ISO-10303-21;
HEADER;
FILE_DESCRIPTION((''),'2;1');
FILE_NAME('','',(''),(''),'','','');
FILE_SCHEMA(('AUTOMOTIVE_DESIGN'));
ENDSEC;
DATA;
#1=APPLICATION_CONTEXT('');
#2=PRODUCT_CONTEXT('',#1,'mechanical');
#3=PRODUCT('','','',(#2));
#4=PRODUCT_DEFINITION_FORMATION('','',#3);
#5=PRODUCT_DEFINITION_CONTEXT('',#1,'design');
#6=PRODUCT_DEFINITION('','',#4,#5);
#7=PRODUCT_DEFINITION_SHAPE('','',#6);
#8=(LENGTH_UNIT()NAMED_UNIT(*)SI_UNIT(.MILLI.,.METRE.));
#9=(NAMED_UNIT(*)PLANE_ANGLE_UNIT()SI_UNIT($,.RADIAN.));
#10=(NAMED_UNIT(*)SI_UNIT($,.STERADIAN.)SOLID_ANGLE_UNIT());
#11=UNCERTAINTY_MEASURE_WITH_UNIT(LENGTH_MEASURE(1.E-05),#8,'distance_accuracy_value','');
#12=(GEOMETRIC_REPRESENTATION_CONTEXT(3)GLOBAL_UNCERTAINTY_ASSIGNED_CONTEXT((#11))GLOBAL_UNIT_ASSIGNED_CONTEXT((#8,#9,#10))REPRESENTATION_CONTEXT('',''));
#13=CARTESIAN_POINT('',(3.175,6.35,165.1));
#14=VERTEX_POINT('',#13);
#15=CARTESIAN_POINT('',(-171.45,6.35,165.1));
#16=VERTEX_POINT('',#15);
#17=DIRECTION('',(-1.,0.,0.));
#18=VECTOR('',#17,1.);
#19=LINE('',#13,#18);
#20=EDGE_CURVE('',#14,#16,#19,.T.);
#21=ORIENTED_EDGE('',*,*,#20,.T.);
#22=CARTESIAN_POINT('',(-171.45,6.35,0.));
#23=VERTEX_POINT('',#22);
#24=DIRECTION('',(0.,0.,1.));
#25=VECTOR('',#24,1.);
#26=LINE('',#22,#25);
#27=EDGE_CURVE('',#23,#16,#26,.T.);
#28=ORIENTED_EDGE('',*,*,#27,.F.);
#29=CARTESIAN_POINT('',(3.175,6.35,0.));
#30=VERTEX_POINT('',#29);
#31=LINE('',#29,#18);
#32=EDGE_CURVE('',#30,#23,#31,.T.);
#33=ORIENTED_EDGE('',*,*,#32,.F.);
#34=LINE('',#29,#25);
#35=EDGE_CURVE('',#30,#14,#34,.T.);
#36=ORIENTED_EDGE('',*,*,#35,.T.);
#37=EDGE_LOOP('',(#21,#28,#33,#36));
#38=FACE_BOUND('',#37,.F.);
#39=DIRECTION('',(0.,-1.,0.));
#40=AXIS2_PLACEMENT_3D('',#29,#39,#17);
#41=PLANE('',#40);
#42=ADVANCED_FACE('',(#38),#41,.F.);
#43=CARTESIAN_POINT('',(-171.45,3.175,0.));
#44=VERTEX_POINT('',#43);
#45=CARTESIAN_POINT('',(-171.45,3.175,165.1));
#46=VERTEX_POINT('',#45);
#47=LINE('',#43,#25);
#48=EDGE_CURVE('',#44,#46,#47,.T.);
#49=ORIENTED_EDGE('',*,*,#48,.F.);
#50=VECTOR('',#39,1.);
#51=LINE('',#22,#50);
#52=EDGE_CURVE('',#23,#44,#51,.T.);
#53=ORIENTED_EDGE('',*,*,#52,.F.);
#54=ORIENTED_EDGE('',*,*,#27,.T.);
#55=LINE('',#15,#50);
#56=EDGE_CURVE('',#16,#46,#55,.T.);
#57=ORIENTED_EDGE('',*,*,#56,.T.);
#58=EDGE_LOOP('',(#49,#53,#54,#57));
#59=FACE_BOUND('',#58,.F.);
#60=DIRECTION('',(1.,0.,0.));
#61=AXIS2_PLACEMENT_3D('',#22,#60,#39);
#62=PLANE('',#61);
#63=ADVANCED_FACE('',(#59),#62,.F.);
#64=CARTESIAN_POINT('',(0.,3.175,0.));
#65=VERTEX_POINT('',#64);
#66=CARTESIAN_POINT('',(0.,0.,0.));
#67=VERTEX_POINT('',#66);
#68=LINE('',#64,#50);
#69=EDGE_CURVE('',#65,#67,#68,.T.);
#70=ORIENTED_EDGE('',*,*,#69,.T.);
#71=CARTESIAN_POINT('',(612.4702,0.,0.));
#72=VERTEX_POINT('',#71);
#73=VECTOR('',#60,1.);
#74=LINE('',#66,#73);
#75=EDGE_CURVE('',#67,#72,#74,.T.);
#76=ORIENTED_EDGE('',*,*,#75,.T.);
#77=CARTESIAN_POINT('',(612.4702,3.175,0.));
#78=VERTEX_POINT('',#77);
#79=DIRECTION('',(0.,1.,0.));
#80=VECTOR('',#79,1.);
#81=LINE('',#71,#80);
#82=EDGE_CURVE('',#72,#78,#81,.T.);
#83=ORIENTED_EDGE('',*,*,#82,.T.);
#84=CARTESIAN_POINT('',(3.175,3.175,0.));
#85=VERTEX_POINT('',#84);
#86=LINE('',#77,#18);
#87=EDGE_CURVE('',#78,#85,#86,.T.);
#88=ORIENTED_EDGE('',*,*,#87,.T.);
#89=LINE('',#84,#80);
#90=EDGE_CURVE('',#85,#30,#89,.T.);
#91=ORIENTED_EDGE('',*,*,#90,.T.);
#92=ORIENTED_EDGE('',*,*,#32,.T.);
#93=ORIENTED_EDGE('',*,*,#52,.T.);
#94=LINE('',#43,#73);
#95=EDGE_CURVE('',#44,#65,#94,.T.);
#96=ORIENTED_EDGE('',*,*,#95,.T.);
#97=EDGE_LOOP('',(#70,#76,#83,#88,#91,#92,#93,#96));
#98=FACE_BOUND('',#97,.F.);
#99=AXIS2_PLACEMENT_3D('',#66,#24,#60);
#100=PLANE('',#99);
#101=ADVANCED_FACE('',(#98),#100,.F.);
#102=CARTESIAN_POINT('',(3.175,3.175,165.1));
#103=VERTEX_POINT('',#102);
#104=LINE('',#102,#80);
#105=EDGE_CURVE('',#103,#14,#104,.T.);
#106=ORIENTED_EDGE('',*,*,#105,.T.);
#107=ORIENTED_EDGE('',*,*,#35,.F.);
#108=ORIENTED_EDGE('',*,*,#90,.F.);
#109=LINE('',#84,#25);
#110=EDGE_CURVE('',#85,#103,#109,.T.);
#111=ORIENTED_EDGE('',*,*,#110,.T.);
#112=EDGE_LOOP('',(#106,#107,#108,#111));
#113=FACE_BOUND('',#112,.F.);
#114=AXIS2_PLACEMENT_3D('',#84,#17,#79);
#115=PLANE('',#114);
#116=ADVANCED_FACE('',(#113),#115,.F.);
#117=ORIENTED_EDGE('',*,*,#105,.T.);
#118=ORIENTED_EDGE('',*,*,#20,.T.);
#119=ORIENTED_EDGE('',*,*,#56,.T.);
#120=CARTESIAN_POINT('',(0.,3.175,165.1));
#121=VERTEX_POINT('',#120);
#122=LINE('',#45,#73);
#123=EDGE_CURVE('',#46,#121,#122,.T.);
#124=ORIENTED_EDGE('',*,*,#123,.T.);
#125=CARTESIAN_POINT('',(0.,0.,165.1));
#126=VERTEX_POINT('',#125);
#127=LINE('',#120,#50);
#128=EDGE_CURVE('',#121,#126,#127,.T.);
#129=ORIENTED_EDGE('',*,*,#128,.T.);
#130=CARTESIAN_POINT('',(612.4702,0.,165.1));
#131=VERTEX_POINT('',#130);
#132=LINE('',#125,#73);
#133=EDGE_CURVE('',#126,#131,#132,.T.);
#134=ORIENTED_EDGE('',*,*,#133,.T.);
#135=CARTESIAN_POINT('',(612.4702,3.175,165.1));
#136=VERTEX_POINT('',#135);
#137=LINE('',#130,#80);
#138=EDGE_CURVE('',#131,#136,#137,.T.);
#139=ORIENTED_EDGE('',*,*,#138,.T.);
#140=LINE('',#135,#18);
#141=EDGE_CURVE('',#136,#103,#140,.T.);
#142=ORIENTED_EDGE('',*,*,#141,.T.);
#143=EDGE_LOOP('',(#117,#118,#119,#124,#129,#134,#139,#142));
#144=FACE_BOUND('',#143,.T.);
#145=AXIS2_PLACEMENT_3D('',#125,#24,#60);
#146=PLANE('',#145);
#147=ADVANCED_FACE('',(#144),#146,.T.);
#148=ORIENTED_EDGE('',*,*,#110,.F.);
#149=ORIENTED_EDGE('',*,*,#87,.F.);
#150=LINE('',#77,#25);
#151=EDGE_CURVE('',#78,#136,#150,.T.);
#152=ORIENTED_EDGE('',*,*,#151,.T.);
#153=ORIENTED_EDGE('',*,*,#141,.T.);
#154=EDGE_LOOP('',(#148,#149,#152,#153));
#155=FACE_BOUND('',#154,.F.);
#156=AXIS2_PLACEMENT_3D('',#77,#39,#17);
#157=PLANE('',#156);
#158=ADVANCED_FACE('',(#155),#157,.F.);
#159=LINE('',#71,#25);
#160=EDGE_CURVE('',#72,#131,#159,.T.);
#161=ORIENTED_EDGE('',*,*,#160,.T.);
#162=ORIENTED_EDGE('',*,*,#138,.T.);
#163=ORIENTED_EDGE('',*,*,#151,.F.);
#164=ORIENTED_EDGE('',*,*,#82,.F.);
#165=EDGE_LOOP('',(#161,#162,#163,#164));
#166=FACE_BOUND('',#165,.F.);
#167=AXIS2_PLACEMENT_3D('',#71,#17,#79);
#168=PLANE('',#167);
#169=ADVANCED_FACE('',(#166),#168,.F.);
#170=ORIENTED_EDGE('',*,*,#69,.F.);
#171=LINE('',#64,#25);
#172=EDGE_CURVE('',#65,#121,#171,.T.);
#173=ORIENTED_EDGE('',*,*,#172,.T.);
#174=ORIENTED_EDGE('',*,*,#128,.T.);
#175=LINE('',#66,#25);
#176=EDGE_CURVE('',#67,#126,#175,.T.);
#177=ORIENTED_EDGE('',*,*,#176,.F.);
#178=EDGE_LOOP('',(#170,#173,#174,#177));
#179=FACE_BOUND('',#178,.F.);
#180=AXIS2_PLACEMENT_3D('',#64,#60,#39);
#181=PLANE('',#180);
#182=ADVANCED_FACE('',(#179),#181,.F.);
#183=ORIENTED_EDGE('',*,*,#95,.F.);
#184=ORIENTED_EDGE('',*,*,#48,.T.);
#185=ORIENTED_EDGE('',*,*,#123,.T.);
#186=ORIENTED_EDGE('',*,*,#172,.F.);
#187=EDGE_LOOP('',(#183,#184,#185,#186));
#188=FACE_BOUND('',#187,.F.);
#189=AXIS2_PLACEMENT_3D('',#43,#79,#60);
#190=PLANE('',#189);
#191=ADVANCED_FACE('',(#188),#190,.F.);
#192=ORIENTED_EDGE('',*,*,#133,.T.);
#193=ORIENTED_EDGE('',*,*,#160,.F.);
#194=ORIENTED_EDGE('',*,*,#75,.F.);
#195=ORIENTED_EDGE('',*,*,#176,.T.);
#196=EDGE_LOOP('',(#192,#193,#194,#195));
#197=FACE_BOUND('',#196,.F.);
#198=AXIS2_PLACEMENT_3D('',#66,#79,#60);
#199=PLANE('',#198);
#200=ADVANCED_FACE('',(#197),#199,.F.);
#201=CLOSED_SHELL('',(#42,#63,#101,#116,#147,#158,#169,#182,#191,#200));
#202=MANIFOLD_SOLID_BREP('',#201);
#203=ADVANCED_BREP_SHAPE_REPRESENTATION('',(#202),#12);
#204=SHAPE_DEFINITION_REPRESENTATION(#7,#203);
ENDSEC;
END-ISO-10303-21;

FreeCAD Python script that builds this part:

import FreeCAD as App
import Part
import Sketcher
from FreeCAD import Vector
Q = App.Units.Quantity

doc = App.newDocument("Part")
body = doc.addObject("PartDesign::Body", "Body")

sketch1 = body.newObject("Sketcher::SketchObject", "Sketch")
sketch1.AttachmentSupport = (doc.getObject("XY_Plane"), [""])
sketch1.MapMode = "FlatFace"
sketch1.addGeometry(Part.LineSegment(Vector(0, 3.175, 0), Vector(0, 0, 0)), False)
sketch1.addGeometry(Part.LineSegment(Vector(0, 0, 0), Vector(612.4702, 0, 0)), False)
sketch1.addGeometry(Part.LineSegment(Vector(612.4702, 0, 0), Vector(612.4702, 3.175, 0)), False)
sketch1.addGeometry(Part.LineSegment(Vector(612.4702, 3.175, 0), Vector(3.175, 3.175, 0)), False)
sketch1.addGeometry(Part.LineSegment(Vector(3.175, 3.175, 0), Vector(3.175, 6.35, 0)), False)
sketch1.addGeometry(Part.LineSegment(Vector(3.175, 6.35, 0), Vector(-171.45, 6.35, 0)), False)
sketch1.addGeometry(Part.LineSegment(Vector(-171.45, 6.35, 0), Vector(-171.45, 3.175, 0)), False)
sketch1.addGeometry(Part.LineSegment(Vector(-171.45, 3.175, 0), Vector(0, 3.175, 0)), False)
sketch1.addConstraint(Sketcher.Constraint("Coincident", 0, 2, 1, 1))
sketch1.addConstraint(Sketcher.Constraint("Coincident", 1, 2, 2, 1))
sketch1.addConstraint(Sketcher.Constraint("Coincident", 2, 2, 3, 1))
sketch1.addConstraint(Sketcher.Constraint("Coincident", 3, 2, 4, 1))
sketch1.addConstraint(Sketcher.Constraint("Coincident", 4, 2, 5, 1))
sketch1.addConstraint(Sketcher.Constraint("Coincident", 5, 2, 6, 1))
sketch1.addConstraint(Sketcher.Constraint("Coincident", 6, 2, 7, 1))
sketch1.addConstraint(Sketcher.Constraint("Coincident", 7, 2, 0, 1))
sketch1.addConstraint(Sketcher.Constraint("Vertical", 0))
sketch1.addConstraint(Sketcher.Constraint("Horizontal", 1))
sketch1.addConstraint(Sketcher.Constraint("Vertical", 2))
sketch1.addConstraint(Sketcher.Constraint("Horizontal", 3))
sketch1.addConstraint(Sketcher.Constraint("Vertical", 4))
sketch1.addConstraint(Sketcher.Constraint("Horizontal", 5))
sketch1.addConstraint(Sketcher.Constraint("Vertical", 6))
sketch1.addConstraint(Sketcher.Constraint("Horizontal", 7))
sketch1.addConstraint(Sketcher.Constraint("Coincident", 0, 2, -1, 1))
sketch1.addConstraint(Sketcher.Constraint("Horizontal", 3, 2, 6, 2))
sketch1.addConstraint(Sketcher.Constraint("Equal", 2, 4))
sketch1.addConstraint(Sketcher.Constraint("DistanceX", 7, 1, 7, 2, Q("6.75 in")))
sketch1.addConstraint(Sketcher.Constraint("DistanceX", 1, 1, 1, 2, Q("24.113 in")))
sketch1.addConstraint(Sketcher.Constraint("DistanceY", 0, 2, 0, 1, Q("0.125 in")))
sketch1.addConstraint(Sketcher.Constraint("DistanceX", -1, 1, 3, 2, Q("0.125 in")))
pad1 = body.newObject("PartDesign::Pad", "Pad")
pad1.Profile = sketch1
pad1.Length = Q("6.5 in")

doc.recompute()
